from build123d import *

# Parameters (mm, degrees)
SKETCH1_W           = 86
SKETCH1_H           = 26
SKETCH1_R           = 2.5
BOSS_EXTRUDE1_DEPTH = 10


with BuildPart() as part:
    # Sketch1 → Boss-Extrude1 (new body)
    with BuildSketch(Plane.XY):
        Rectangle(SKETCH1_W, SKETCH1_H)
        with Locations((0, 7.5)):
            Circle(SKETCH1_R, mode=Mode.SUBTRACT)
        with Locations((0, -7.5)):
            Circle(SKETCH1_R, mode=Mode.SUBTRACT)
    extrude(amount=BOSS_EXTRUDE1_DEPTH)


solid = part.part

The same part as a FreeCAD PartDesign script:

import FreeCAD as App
import Part
import Sketcher

V = App.Vector

doc = App.newDocument("Part")
body = doc.addObject("PartDesign::Body", "Body")

# Sketch on XY plane
sketch1 = doc.addObject("Sketcher::SketchObject", "Sketch")
body.addObject(sketch1)
sketch1.AttachmentSupport = (doc.XY_Plane, [""])
sketch1.MapMode = "FlatFace"
sketch1.addGeometry(Part.LineSegment(V(-43, 13, 0), V(-43, -13, 0)), False)
sketch1.addGeometry(Part.LineSegment(V(-43, -13, 0), V(43, -13, 0)), False)
sketch1.addGeometry(Part.LineSegment(V(43, -13, 0), V(43, 13, 0)), False)
sketch1.addGeometry(Part.LineSegment(V(43, 13, 0), V(-43, 13, 0)), False)
sketch1.addGeometry(Part.Circle(V(0, -7.5, 0), V(0, 0, 1), 2.5), False)
sketch1.addGeometry(Part.Circle(V(0, 7.5, 0), V(0, 0, 1), 2.5), False)
sketch1.addConstraint(Sketcher.Constraint("Coincident", 0, 2, 1, 1))
sketch1.addConstraint(Sketcher.Constraint("Coincident", 1, 2, 2, 1))
sketch1.addConstraint(Sketcher.Constraint("Coincident", 2, 2, 3, 1))
sketch1.addConstraint(Sketcher.Constraint("Coincident", 3, 2, 0, 1))
sketch1.addConstraint(Sketcher.Constraint("Vertical", 0))
sketch1.addConstraint(Sketcher.Constraint("Horizontal", 1))
sketch1.addConstraint(Sketcher.Constraint("Vertical", 2))
sketch1.addConstraint(Sketcher.Constraint("Horizontal", 3))
sketch1.addConstraint(Sketcher.Constraint("Equal", 4, 5))
sketch1.addConstraint(Sketcher.Constraint("Symmetric", 4, 3, 5, 3, -1, 1))
sketch1.addConstraint(Sketcher.Constraint("Symmetric", 0, 2, 2, 2, -1, 1))
sketch1.addConstraint(Sketcher.Constraint("PointOnObject", 4, 3, -2))
sketch1.addConstraint(Sketcher.Constraint("Diameter", 4, 5.0))
sketch1.addConstraint(Sketcher.Constraint("DistanceX", 1, 1, 1, 2, 86.0))
sketch1.addConstraint(Sketcher.Constraint("DistanceY", 0, 2, 0, 1, 26.0))
sketch1.addConstraint(Sketcher.Constraint("DistanceY", 4, 3, 5, 3, 15.0))
pad1 = doc.addObject("PartDesign::Pad", "Pad")
body.addObject(pad1)
pad1.Profile = sketch1
pad1.Length = 10

doc.recompute()
